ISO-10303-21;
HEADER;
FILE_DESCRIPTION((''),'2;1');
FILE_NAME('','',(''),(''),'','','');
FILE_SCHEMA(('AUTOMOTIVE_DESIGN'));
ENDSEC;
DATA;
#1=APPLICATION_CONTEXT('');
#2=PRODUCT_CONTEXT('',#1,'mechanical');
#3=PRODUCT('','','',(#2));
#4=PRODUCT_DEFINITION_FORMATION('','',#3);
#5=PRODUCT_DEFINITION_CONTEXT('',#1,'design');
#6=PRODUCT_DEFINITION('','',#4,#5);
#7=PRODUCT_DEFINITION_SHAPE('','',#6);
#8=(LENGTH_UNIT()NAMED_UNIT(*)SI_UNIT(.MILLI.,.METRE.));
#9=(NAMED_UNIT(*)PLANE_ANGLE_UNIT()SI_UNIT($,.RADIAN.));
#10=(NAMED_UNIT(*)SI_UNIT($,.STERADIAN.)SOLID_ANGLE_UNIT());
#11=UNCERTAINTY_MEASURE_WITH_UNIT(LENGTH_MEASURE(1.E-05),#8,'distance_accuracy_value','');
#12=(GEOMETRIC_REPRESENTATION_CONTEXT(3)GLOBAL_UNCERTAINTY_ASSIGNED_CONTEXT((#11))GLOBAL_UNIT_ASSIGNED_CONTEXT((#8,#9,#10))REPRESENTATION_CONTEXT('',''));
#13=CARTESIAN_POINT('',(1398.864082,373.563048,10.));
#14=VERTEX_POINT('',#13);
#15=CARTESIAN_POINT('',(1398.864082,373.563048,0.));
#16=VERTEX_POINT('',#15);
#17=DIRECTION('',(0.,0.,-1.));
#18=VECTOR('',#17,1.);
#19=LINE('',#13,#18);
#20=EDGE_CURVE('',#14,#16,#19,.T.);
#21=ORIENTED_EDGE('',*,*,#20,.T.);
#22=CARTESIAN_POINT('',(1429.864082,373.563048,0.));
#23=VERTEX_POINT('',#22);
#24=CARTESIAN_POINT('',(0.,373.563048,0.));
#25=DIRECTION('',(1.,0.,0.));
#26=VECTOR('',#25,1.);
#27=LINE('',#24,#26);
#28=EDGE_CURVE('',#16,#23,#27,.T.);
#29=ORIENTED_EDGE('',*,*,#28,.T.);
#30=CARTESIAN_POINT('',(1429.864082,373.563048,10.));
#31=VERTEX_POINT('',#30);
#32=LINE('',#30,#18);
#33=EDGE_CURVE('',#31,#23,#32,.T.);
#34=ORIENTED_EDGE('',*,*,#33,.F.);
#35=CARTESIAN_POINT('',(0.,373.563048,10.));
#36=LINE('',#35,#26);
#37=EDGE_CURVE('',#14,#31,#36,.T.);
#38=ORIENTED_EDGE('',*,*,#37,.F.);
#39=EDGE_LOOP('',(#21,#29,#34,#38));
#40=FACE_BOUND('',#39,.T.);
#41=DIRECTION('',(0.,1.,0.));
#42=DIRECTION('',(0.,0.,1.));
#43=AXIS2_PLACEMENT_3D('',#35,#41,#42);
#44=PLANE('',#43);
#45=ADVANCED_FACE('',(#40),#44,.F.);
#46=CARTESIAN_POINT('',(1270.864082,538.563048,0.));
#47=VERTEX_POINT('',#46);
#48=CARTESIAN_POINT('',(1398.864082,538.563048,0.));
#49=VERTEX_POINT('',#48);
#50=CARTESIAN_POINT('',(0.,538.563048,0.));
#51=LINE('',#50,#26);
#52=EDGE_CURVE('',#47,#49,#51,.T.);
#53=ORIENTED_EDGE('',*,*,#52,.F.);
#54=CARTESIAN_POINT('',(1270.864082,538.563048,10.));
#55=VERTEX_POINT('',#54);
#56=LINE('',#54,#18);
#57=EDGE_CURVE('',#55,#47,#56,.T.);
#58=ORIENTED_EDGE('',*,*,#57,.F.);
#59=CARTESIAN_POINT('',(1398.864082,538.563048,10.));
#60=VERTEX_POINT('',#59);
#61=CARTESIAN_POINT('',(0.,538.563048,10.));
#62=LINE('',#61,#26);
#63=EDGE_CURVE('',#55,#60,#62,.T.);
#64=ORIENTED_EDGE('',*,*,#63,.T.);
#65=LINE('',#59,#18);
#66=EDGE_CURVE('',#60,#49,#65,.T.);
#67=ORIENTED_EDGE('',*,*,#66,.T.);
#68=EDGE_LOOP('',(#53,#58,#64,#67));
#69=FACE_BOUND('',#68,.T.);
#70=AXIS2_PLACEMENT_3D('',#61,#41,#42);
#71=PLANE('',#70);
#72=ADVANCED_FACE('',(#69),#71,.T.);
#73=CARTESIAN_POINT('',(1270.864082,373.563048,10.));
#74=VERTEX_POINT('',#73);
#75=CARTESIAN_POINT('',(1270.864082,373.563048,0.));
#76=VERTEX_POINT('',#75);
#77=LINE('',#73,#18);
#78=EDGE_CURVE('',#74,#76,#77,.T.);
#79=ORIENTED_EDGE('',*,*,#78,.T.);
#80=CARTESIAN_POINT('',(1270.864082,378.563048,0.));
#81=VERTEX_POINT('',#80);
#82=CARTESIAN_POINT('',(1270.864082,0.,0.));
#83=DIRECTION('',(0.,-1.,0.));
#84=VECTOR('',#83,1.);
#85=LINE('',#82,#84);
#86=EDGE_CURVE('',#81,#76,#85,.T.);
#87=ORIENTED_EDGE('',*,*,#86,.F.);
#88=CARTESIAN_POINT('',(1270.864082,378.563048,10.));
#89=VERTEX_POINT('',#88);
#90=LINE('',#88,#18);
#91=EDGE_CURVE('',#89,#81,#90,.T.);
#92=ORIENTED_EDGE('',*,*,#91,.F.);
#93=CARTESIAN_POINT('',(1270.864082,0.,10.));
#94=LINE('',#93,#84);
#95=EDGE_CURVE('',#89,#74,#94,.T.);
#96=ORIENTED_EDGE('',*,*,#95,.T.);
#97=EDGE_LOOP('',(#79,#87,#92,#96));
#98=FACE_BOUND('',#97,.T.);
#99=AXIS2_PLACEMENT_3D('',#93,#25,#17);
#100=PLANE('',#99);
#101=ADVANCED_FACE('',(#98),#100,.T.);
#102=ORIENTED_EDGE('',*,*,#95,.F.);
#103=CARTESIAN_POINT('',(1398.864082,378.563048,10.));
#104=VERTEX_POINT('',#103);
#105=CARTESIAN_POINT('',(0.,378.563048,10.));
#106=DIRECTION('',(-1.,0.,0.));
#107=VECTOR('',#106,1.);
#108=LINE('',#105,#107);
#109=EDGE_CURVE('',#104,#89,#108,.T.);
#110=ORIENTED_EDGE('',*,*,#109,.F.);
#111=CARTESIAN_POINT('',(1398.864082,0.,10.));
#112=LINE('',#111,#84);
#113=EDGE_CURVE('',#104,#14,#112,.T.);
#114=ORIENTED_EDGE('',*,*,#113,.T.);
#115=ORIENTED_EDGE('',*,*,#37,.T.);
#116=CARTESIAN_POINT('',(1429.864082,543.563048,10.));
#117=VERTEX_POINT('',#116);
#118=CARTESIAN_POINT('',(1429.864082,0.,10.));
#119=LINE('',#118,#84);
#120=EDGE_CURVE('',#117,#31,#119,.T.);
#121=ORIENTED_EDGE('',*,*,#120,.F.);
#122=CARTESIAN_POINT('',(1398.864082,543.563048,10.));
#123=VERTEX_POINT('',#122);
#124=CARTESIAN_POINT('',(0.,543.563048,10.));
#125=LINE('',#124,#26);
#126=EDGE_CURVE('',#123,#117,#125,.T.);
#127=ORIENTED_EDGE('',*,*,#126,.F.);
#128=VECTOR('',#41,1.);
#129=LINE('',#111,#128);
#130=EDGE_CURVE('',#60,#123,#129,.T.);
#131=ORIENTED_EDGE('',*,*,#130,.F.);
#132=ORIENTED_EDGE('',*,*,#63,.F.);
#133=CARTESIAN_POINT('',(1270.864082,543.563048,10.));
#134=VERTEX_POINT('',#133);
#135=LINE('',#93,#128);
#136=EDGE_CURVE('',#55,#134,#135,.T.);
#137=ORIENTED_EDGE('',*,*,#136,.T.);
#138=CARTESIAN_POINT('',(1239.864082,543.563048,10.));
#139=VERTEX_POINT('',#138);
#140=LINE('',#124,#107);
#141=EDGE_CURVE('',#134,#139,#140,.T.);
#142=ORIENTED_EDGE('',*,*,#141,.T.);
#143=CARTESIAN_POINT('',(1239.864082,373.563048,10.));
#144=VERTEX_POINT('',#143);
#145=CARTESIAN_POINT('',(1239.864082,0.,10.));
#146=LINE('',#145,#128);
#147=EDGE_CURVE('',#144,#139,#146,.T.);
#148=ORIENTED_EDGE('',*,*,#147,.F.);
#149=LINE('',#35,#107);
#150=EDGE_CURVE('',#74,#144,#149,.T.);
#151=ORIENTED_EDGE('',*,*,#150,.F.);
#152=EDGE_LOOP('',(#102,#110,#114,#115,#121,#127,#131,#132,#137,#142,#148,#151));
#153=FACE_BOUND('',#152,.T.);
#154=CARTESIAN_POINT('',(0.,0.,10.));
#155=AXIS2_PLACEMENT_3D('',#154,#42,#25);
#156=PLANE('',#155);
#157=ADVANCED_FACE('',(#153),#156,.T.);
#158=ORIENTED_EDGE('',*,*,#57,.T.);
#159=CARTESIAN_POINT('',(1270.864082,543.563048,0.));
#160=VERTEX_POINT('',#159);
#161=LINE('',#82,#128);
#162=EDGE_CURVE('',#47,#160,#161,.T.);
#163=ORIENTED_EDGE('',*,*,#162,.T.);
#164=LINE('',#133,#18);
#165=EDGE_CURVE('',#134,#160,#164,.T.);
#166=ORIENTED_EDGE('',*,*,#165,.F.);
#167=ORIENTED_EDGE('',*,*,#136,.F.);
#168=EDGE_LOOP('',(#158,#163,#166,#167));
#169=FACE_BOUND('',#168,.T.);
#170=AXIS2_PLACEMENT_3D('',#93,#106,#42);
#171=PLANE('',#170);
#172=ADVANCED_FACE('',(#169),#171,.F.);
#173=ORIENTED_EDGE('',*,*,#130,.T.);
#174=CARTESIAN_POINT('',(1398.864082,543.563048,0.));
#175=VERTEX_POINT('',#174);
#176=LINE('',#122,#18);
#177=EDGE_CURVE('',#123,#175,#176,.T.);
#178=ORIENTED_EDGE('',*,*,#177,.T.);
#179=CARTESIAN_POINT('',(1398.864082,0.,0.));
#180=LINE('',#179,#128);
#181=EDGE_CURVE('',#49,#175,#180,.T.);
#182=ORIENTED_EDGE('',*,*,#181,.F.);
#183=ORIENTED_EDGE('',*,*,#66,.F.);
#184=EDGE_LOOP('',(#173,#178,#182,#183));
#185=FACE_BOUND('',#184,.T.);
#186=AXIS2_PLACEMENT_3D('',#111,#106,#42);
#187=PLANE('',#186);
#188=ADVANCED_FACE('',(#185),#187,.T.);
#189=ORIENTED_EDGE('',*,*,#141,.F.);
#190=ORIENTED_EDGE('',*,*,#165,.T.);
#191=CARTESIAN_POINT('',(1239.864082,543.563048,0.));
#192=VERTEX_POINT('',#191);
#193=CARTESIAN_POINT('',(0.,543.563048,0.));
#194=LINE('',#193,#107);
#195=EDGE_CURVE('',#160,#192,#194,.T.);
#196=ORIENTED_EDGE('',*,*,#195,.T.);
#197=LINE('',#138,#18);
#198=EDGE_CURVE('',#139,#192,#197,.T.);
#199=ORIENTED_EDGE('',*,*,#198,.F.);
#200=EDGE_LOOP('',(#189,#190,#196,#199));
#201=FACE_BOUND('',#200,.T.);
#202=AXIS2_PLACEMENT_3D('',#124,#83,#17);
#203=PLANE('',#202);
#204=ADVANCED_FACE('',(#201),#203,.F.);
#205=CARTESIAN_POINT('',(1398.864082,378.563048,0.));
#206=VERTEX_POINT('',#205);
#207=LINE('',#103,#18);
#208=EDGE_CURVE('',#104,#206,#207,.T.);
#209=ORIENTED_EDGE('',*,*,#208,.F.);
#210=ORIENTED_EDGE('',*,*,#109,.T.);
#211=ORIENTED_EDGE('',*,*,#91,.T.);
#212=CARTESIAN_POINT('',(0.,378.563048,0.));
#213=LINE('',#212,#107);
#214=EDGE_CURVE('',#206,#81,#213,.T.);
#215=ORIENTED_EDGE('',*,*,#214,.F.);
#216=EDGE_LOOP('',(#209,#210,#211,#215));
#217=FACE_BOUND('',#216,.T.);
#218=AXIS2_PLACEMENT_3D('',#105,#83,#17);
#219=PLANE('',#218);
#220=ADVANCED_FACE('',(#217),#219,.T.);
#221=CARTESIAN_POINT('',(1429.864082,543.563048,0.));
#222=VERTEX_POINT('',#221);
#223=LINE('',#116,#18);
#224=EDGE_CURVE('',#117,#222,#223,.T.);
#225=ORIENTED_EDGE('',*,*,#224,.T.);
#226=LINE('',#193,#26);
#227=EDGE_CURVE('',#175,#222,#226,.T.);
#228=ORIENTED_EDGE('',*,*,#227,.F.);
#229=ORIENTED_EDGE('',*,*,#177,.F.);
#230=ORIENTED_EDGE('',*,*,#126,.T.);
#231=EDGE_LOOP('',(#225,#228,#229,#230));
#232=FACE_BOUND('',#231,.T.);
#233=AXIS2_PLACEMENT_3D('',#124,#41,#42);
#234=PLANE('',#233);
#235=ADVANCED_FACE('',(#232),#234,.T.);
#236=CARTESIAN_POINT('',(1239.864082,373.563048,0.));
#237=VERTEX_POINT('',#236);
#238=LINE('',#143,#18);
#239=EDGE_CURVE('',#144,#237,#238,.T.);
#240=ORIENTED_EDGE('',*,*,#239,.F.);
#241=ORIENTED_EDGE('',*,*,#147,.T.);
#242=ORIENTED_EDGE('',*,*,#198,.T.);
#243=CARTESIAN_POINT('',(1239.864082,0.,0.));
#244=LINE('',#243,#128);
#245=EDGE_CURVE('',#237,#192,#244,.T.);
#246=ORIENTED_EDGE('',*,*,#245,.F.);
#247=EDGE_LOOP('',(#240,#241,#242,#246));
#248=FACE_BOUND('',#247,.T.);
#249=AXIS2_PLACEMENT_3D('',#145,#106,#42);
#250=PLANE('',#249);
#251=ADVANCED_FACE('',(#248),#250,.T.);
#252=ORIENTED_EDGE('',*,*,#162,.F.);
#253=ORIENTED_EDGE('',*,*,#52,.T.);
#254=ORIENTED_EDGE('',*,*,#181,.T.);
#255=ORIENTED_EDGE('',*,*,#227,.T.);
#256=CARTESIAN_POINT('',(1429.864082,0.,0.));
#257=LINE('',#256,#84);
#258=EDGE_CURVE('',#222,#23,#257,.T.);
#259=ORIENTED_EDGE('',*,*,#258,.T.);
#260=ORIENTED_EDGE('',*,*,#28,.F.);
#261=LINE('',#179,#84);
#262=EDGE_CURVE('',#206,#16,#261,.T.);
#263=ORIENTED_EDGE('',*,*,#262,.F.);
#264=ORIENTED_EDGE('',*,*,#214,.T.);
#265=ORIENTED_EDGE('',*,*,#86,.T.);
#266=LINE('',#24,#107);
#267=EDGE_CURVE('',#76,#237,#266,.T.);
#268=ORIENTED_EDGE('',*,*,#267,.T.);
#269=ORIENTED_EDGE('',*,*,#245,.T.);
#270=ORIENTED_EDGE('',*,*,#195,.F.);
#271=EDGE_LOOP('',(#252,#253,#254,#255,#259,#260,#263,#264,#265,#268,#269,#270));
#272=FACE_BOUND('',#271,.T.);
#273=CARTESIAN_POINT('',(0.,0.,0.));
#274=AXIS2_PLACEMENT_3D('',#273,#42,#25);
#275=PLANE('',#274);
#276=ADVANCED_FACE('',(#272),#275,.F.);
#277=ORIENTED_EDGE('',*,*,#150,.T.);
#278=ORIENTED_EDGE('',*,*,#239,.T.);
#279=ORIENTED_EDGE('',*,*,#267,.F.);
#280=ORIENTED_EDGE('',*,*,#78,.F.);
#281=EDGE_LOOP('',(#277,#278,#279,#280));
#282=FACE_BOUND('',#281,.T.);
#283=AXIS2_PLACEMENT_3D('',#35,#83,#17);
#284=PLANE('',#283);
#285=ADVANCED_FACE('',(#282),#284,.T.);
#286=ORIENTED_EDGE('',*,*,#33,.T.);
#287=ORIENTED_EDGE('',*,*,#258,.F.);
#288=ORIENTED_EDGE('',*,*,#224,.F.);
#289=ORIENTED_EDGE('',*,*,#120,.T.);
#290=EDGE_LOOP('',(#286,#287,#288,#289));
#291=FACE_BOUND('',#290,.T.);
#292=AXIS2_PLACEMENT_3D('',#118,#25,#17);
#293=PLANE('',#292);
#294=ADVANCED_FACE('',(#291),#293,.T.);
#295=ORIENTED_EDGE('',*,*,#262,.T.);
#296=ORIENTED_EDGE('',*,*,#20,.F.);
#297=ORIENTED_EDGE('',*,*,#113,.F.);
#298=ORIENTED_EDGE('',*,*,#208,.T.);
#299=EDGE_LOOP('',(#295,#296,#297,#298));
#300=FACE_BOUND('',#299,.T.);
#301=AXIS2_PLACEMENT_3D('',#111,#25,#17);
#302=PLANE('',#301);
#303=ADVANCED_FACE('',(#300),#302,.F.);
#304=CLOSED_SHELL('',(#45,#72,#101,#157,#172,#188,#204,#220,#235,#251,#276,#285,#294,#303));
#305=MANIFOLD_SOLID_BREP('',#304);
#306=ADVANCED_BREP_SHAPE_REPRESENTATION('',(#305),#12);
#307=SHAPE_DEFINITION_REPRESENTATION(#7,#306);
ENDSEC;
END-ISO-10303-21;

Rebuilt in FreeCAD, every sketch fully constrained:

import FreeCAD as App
import Part
import Sketcher
Q = App.Units.Quantity


def add_polygon(sketch, points):
    """Adds a closed chain of lines whose ends are joined by coincident constraints."""
    first, n = sketch.GeometryCount, len(points)
    for a, b in zip(points, points[1:] + points[:1]):
        sketch.addGeometry(Part.LineSegment(App.Vector(*a, 0), App.Vector(*b, 0)), False)
    for i in range(n):
        sketch.addConstraint(Sketcher.Constraint("Coincident", first + i, 2, first + (i + 1) % n, 1))

doc = App.newDocument("Part")
body = doc.addObject("PartDesign::Body", "Body")

sketch1 = doc.addObject("Sketcher::SketchObject", "Sketch")
body.addObject(sketch1)
sketch1.AttachmentSupport = (doc.XY_Plane, [""])
sketch1.MapMode = "FlatFace"
add_polygon(sketch1, [(1240, 374), (1271, 374), (1271, 379), (1399, 379), (1399, 374), (1430, 374), (1430, 544), (1399, 544), (1399, 539), (1271, 539), (1271, 544), (1240, 544)])
sketch1.addConstraint(Sketcher.Constraint("Horizontal", 0))
sketch1.addConstraint(Sketcher.Constraint("Vertical", 1))
sketch1.addConstraint(Sketcher.Constraint("Horizontal", 2))
sketch1.addConstraint(Sketcher.Constraint("Vertical", 3))
sketch1.addConstraint(Sketcher.Constraint("Horizontal", 4))
sketch1.addConstraint(Sketcher.Constraint("Vertical", 5))
sketch1.addConstraint(Sketcher.Constraint("Horizontal", 6))
sketch1.addConstraint(Sketcher.Constraint("Vertical", 7))
sketch1.addConstraint(Sketcher.Constraint("Horizontal", 8))
sketch1.addConstraint(Sketcher.Constraint("Vertical", 9))
sketch1.addConstraint(Sketcher.Constraint("Horizontal", 10))
sketch1.addConstraint(Sketcher.Constraint("Vertical", 11))
sketch1.addConstraint(Sketcher.Constraint("Horizontal", 0, 2, 3, 2))
sketch1.addConstraint(Sketcher.Constraint("Horizontal", 6, 2, 9, 2))
sketch1.addConstraint(Sketcher.Constraint("Vertical", 3, 2, 6, 2))
sketch1.addConstraint(Sketcher.Constraint("Vertical", 1, 2, 8, 2))
sketch1.addConstraint(Sketcher.Constraint("Equal", 0, 4))
sketch1.addConstraint(Sketcher.Constraint("Equal", 3, 7))
sketch1.addConstraint(Sketcher.Constraint("DistanceX", 0, 1, 0, 2, Q("31 mm")))
sketch1.addConstraint(Sketcher.Constraint("DistanceX", 2, 1, 2, 2, Q("128 mm")))
sketch1.addConstraint(Sketcher.Constraint("DistanceY", 1, 1, 1, 2, Q("5 mm")))
sketch1.addConstraint(Sketcher.Constraint("DistanceY", 5, 1, 5, 2, Q("170 mm")))
sketch1.addConstraint(Sketcher.Constraint("DistanceX", -1, 1, 0, 2, Q("1270.864082 mm")))
sketch1.addConstraint(Sketcher.Constraint("DistanceY", -1, 1, 0, 2, Q("373.563048 mm")))
pad1 = doc.addObject("PartDesign::Pad", "Pad")
body.addObject(pad1)
pad1.Profile = sketch1
pad1.Length = 10

doc.recompute()
